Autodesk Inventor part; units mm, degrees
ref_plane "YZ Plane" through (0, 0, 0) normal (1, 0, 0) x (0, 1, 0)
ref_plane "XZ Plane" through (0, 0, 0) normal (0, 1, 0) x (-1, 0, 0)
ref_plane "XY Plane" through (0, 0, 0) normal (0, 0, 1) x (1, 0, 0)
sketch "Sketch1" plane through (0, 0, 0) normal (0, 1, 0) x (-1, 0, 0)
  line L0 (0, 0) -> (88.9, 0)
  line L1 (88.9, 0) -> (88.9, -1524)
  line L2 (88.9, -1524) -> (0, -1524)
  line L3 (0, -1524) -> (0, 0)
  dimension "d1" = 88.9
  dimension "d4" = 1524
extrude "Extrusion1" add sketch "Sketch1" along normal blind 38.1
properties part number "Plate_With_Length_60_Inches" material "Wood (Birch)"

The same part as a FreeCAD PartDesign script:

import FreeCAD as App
import Part
import Sketcher
Q = App.Units.Quantity

doc = App.newDocument("Part")
body = doc.addObject("PartDesign::Body", "Body")

# Sketch on XZ plane
sketch1 = body.newObject("Sketcher::SketchObject", "Sketch")
sketch1.AttachmentSupport = (doc.getObject("XZ_Plane"), [""])
sketch1.MapMode = "FlatFace"
sketch1.addGeometry([
    Part.LineSegment(App.Vector(-89, 0, 0), App.Vector(0, 0, 0)),
    Part.LineSegment(App.Vector(0, 0, 0), App.Vector(0, -1524, 0)),
    Part.LineSegment(App.Vector(0, -1524, 0), App.Vector(-89, -1524, 0)),
    Part.LineSegment(App.Vector(-89, -1524, 0), App.Vector(-89, 0, 0)),
], False)
sketch1.addConstraint([
    Sketcher.Constraint("Coincident", 0, 2, 1, 1),
    Sketcher.Constraint("Coincident", 1, 2, 2, 1),
    Sketcher.Constraint("Coincident", 2, 2, 3, 1),
    Sketcher.Constraint("Coincident", 3, 2, 0, 1),
    Sketcher.Constraint("Horizontal", 0),
    Sketcher.Constraint("Vertical", 1),
    Sketcher.Constraint("Horizontal", 2),
    Sketcher.Constraint("Vertical", 3),
    Sketcher.Constraint("Coincident", 0, 2, -1, 1),
    Sketcher.Constraint("DistanceY", 1, 2, 1, 1, Q("60 in")),
    Sketcher.Constraint("DistanceX", 0, 1, 0, 2, Q("3.5 in")),
])
pad1 = body.newObject("PartDesign::Pad", "Pad")
pad1.Profile = sketch1
pad1.Length = Q("1.5 in")
pad1.Reversed = True

doc.recompute()
